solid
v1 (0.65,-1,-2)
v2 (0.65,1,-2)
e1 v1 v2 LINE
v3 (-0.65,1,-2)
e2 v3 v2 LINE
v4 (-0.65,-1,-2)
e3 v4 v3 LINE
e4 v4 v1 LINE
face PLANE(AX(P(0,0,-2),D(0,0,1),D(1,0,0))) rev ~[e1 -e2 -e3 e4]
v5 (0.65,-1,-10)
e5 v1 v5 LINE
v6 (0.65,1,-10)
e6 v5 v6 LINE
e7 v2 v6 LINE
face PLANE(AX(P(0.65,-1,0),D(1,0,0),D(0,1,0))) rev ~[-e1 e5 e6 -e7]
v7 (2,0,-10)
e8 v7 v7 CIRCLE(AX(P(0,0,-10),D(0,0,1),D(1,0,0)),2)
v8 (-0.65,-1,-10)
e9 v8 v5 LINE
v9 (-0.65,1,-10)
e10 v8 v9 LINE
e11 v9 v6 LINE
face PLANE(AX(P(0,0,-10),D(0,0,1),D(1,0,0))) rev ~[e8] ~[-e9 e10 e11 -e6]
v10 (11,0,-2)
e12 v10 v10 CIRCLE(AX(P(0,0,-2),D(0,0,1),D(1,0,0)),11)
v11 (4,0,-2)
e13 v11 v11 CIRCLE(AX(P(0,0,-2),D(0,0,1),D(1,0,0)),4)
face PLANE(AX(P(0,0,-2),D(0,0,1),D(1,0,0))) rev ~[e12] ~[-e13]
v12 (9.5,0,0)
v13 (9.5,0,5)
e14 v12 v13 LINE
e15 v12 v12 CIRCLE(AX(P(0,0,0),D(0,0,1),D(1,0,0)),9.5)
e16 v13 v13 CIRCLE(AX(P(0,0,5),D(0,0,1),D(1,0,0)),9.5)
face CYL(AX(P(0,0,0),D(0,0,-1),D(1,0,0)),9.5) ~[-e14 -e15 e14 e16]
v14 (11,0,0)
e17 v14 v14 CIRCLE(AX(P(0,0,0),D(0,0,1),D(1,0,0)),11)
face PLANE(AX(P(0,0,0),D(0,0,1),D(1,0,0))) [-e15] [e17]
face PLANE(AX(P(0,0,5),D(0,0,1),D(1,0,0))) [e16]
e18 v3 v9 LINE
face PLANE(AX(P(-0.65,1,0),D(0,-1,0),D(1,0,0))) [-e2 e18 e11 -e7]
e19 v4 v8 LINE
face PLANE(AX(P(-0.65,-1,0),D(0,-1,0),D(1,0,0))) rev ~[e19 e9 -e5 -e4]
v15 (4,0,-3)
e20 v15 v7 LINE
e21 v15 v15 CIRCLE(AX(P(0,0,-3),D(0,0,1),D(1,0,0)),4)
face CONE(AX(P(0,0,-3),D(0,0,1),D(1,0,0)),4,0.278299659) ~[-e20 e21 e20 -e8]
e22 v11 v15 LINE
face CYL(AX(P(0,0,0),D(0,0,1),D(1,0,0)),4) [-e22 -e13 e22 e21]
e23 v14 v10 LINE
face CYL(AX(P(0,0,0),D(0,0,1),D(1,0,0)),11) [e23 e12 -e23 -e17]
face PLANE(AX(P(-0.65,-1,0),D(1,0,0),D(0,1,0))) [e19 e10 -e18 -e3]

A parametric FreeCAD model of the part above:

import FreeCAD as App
import Part
import Sketcher

V = App.Vector
Q = App.Units.Quantity


def edges_at(feature, points):
    """Names of the edges that pass closest to the given points."""
    edges = feature.Shape.Edges
    near = lambda p: min(range(len(edges)), key=lambda i: edges[i].distToShape(Part.Vertex(*p))[0])
    return sorted({f"Edge{near(p) + 1}" for p in points})

doc = App.newDocument("Part")
body = doc.addObject("PartDesign::Body", "Body")

sketch1 = body.newObject("Sketcher::SketchObject", "Sketch")
sketch1.AttachmentSupport = (doc.getObject("XY_Plane"), [""])
sketch1.MapMode = "FlatFace"
sketch1.addGeometry(Part.Circle(V(0, 0, 0), V(0, 0, 1), 11), False)
sketch1.addConstraint([
    Sketcher.Constraint("Coincident", 0, 3, -1, 1),
    Sketcher.Constraint("Diameter", 0, Q("22 mm")),
])
pad1 = body.newObject("PartDesign::Pad", "Pad")
pad1.Profile = sketch1
pad1.Length = 2
pad1.Reversed = True

sketch2 = body.newObject("Sketcher::SketchObject", "Sketch001")
sketch2.AttachmentSupport = (doc.getObject("XY_Plane"), [""])
sketch2.MapMode = "FlatFace"
sketch2.addGeometry(Part.Circle(V(0, 0, 0), V(0, 0, 1), 10), False)
sketch2.addConstraint([
    Sketcher.Constraint("Coincident", 0, 3, -1, 1),
    Sketcher.Constraint("Diameter", 0, Q("19 mm")),
])
pad2 = body.newObject("PartDesign::Pad", "Pad001")
pad2.Profile = sketch2
pad2.Length = 5

sketch3 = body.newObject("Sketcher::SketchObject", "Sketch002")
sketch3.AttachmentSupport = (doc.getObject("XY_Plane"), [""])
sketch3.MapMode = "FlatFace"
sketch3.addGeometry([
    Part.Circle(V(0, 0, 0), V(0, 0, 1), 4),
    Part.LineSegment(V(0.7, -1, 0), V(-0.7, -1, 0)),
    Part.LineSegment(V(-0.7, -1, 0), V(-0.7, 1, 0)),
    Part.LineSegment(V(-0.7, 1, 0), V(0.7, 1, 0)),
    Part.LineSegment(V(0.7, 1, 0), V(0.7, -1, 0)),
], False)
sketch3.addConstraint([
    Sketcher.Constraint("Coincident", 1, 2, 2, 1),
    Sketcher.Constraint("Coincident", 2, 2, 3, 1),
    Sketcher.Constraint("Coincident", 3, 2, 4, 1),
    Sketcher.Constraint("Coincident", 4, 2, 1, 1),
    Sketcher.Constraint("Horizontal", 1),
    Sketcher.Constraint("Vertical", 2),
    Sketcher.Constraint("Horizontal", 3),
    Sketcher.Constraint("Vertical", 4),
    Sketcher.Constraint("Coincident", 0, 3, -1, 1),
    Sketcher.Constraint("Symmetric", 1, 2, 3, 2, -1, 1),
    Sketcher.Constraint("Diameter", 0, Q("8 mm")),
    Sketcher.Constraint("DistanceY", 2, 1, 2, 2, Q("2 mm")),
    Sketcher.Constraint("DistanceX", 1, 2, 1, 1, Q("1.3 mm")),
])
pad3 = body.newObject("PartDesign::Pad", "Pad002")
pad3.Profile = sketch3
pad3.Length = 10
pad3.Reversed = True
doc.recompute()

chamfer = body.newObject("PartDesign::Chamfer", "Chamfer")
chamfer.Base = (pad3, edges_at(pad3, [(-4, 0, -10)]))
chamfer.ChamferType = "Two distances"
chamfer.Size = 7
chamfer.Size2 = 2

doc.recompute()
